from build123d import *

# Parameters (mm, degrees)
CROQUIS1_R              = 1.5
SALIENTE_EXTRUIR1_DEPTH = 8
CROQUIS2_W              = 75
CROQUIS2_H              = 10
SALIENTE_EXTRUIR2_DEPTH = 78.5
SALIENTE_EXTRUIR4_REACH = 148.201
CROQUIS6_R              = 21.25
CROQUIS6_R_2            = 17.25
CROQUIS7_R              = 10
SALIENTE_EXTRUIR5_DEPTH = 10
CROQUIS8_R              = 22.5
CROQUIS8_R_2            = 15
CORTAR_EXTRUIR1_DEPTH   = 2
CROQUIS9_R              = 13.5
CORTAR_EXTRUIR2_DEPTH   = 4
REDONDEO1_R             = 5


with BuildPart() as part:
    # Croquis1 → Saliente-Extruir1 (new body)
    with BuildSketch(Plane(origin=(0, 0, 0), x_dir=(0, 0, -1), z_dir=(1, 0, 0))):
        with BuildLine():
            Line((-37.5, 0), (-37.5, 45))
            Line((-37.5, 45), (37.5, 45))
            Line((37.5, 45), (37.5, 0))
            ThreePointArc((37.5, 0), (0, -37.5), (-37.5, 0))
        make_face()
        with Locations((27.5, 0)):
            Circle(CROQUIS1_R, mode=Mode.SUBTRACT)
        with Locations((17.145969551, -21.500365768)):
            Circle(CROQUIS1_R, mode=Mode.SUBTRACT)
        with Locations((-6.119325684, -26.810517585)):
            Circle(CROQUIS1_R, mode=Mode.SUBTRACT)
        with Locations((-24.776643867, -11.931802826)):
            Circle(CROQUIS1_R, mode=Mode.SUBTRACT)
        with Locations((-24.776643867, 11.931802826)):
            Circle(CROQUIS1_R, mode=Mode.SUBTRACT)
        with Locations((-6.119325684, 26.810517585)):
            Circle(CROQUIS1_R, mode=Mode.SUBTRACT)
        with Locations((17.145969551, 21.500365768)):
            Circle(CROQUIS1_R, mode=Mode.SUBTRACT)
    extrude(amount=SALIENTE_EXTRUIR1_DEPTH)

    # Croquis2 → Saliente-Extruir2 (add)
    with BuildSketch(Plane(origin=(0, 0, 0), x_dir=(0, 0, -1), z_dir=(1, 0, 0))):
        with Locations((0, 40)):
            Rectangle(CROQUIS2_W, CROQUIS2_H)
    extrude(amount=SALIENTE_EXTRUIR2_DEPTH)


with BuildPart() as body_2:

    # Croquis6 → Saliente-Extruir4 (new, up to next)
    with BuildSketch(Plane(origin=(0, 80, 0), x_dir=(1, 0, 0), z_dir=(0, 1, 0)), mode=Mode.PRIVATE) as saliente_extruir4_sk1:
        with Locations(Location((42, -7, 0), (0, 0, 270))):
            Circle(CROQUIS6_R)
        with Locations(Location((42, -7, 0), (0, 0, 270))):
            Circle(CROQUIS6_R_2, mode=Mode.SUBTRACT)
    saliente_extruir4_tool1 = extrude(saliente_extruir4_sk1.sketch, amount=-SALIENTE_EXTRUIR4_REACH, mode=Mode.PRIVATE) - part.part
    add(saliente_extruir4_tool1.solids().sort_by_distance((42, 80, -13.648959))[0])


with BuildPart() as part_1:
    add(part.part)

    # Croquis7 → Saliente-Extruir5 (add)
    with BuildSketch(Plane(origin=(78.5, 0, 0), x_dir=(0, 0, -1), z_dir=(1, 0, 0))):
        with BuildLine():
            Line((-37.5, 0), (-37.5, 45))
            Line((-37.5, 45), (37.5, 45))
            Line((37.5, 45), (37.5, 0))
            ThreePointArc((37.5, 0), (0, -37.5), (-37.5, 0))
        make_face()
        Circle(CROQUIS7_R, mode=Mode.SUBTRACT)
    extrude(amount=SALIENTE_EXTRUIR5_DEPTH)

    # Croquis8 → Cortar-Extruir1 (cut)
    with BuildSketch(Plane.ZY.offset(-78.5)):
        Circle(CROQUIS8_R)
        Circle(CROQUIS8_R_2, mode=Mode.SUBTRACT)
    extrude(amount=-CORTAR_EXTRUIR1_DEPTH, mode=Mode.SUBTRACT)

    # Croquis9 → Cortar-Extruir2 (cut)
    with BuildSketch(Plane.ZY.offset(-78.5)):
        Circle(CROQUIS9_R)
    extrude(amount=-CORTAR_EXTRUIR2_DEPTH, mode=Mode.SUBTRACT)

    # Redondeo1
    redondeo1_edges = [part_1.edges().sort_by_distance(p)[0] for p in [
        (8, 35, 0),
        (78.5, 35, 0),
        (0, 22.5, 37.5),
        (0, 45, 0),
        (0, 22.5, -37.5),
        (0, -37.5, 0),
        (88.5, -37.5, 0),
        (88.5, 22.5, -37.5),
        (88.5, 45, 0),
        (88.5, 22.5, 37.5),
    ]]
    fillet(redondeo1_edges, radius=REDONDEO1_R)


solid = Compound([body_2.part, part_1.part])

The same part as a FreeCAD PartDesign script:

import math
import FreeCAD as App
import Part
import Sketcher


def edges_at(feature, points):
    """Names of the edges that pass closest to the given points."""
    edges = feature.Shape.Edges
    near = lambda p: min(range(len(edges)), key=lambda i: edges[i].distToShape(Part.Vertex(*p))[0])
    return sorted({f"Edge{near(p) + 1}" for p in points})


def add_polygon(sketch, points):
    """Adds a closed chain of lines whose ends are joined by coincident constraints."""
    first, n = sketch.GeometryCount, len(points)
    for a, b in zip(points, points[1:] + points[:1]):
        sketch.addGeometry(Part.LineSegment(App.Vector(*a, 0), App.Vector(*b, 0)), False)
    for i in range(n):
        sketch.addConstraint(Sketcher.Constraint("Coincident", first + i, 2, first + (i + 1) % n, 1))

doc = App.newDocument("Part")
body = doc.addObject("PartDesign::Body", "Body")

sketch1 = doc.addObject("Sketcher::SketchObject", "Sketch")
body.addObject(sketch1)
sketch1.AttachmentSupport = (doc.YZ_Plane, [""])
sketch1.MapMode = "FlatFace"
sketch1.addGeometry(Part.LineSegment(App.Vector(45, 37.5, 0), App.Vector(0, 37.5, 0)), False)
sketch1.addGeometry(Part.ArcOfCircle(Part.Circle(App.Vector(0, 0, 0), App.Vector(0, 0, 1), 37.5), math.radians(90), math.radians(270)), False)
sketch1.addGeometry(Part.LineSegment(App.Vector(0, -37.5, 0), App.Vector(45, -37.5, 0)), False)
sketch1.addGeometry(Part.LineSegment(App.Vector(45, -37.5, 0), App.Vector(45, 37.5, 0)), False)
sketch1.addGeometry(Part.Circle(App.Vector(-21.500366, -17.14597, 0), App.Vector(0, 0, 1), 1.5), False)
sketch1.addGeometry(Part.Circle(App.Vector(-26.810518, 6.119326, 0), App.Vector(0, 0, 1), 1.5), False)
sketch1.addGeometry(Part.Circle(App.Vector(-11.931803, 24.776644, 0), App.Vector(0, 0, 1), 1.5), False)
sketch1.addGeometry(Part.Circle(App.Vector(0, -27.5, 0), App.Vector(0, 0, 1), 1.5), False)
sketch1.addGeometry(Part.Circle(App.Vector(21.500366, -17.14597, 0), App.Vector(0, 0, 1), 1.5), False)
sketch1.addGeometry(Part.Circle(App.Vector(11.931803, 24.776644, 0), App.Vector(0, 0, 1), 1.5), False)
sketch1.addGeometry(Part.Circle(App.Vector(26.810518, 6.119326, 0), App.Vector(0, 0, 1), 1.5), False)
sketch1.addConstraint(Sketcher.Constraint("Tangent", 0, 2, 1, 1))
sketch1.addConstraint(Sketcher.Constraint("Tangent", 1, 2, 2, 1))
sketch1.addConstraint(Sketcher.Constraint("Coincident", 2, 2, 3, 1))
sketch1.addConstraint(Sketcher.Constraint("Coincident", 3, 2, 0, 1))
sketch1.addConstraint(Sketcher.Constraint("Horizontal", 0))
sketch1.addConstraint(Sketcher.Constraint("Horizontal", 2))
sketch1.addConstraint(Sketcher.Constraint("Vertical", 3))
sketch1.addConstraint(Sketcher.Constraint("Coincident", 1, 3, -1, 1))
sketch1.addConstraint(Sketcher.Constraint("Equal", 4, 5))
sketch1.addConstraint(Sketcher.Constraint("Equal", 5, 6))
sketch1.addConstraint(Sketcher.Constraint("Equal", 6, 7))
sketch1.addConstraint(Sketcher.Constraint("Equal", 7, 8))
sketch1.addConstraint(Sketcher.Constraint("Equal", 8, 9))
sketch1.addConstraint(Sketcher.Constraint("Equal", 9, 10))
sketch1.addConstraint(Sketcher.Constraint("Symmetric", 4, 3, 8, 3, -2))
sketch1.addConstraint(Sketcher.Constraint("Symmetric", 6, 3, 9, 3, -2))
sketch1.addConstraint(Sketcher.Constraint("Symmetric", 5, 3, 10, 3, -2))
sketch1.addConstraint(Sketcher.Constraint("PointOnObject", 7, 3, -2))
sketch1.addConstraint(Sketcher.Constraint("Diameter", 4, 3.0))
sketch1.addConstraint(Sketcher.Constraint("Radius", 1, 37.5))
sketch1.addConstraint(Sketcher.Constraint("DistanceX", 0, 2, 0, 1, 45.0))
sketch1.addConstraint(Sketcher.Constraint("DistanceY", 1, 2, 7, 3, 10.0))
sketch1.addConstraint(Sketcher.Constraint("DistanceY", 4, 3, -1, 1, 17.14597))
sketch1.addConstraint(Sketcher.Constraint("DistanceX", 5, 3, 4, 3, 5.310152))
sketch1.addConstraint(Sketcher.Constraint("DistanceY", 5, 3, 6, 3, 18.657318))
sketch1.addConstraint(Sketcher.Constraint("DistanceX", 4, 3, 8, 3, 43.000732))
sketch1.addConstraint(Sketcher.Constraint("DistanceX", 6, 3, 8, 3, 33.432169))
sketch1.addConstraint(Sketcher.Constraint("DistanceY", -1, 1, 5, 3, 6.119326))
pad1 = doc.addObject("PartDesign::Pad", "Pad")
body.addObject(pad1)
pad1.Profile = sketch1
pad1.Length = 8

sketch2 = doc.addObject("Sketcher::SketchObject", "Sketch001")
body.addObject(sketch2)
sketch2.AttachmentSupport = (doc.YZ_Plane, [""])
sketch2.MapMode = "FlatFace"
add_polygon(sketch2, [(45, 37.5), (35, 37.5), (35, -37.5), (45, -37.5)])
sketch2.addConstraint(Sketcher.Constraint("Horizontal", 0))
sketch2.addConstraint(Sketcher.Constraint("Vertical", 1))
sketch2.addConstraint(Sketcher.Constraint("Horizontal", 2))
sketch2.addConstraint(Sketcher.Constraint("Vertical", 3))
sketch2.addConstraint(Sketcher.Constraint("DistanceX", 0, 2, 0, 1, 10.0))
sketch2.addConstraint(Sketcher.Constraint("DistanceY", 1, 2, 1, 1, 75.0))
sketch2.addConstraint(Sketcher.Constraint("DistanceX", -1, 1, 0, 2, 35.0))
sketch2.addConstraint(Sketcher.Constraint("DistanceY", -1, 1, 0, 2, 37.5))
pad2 = doc.addObject("PartDesign::Pad", "Pad001")
body.addObject(pad2)
pad2.Profile = sketch2
pad2.Length = 78.5
body2 = doc.addObject("PartDesign::Body", "Body001")

sketch3 = doc.addObject("Sketcher::SketchObject", "Sketch002")
body2.addObject(sketch3)
sketch3.AttachmentSupport = (doc.getObject("XZ_Plane001"), [""])
sketch3.MapMode = "FlatFace"
sketch3.AttachmentOffset = App.Placement(App.Vector(0, 0, -80), App.Rotation())
sketch3.addGeometry(Part.Circle(App.Vector(42, 7, 0), App.Vector(0, 0, 1), 21.25), False)
sketch3.addGeometry(Part.Circle(App.Vector(42, 7, 0), App.Vector(0, 0, 1), 17.25), False)
sketch3.addConstraint(Sketcher.Constraint("Coincident", 1, 3, 0, 3))
sketch3.addConstraint(Sketcher.Constraint("Diameter", 0, 42.5))
sketch3.addConstraint(Sketcher.Constraint("Diameter", 1, 34.5))
sketch3.addConstraint(Sketcher.Constraint("DistanceX", -1, 1, 0, 3, 42.0))
sketch3.addConstraint(Sketcher.Constraint("DistanceY", -1, 1, 0, 3, 7.0))
pad3 = doc.addObject("PartDesign::Pad", "Pad002")
body2.addObject(pad3)
pad3.Profile = sketch3
pad3.Length = 35

sketch4 = doc.addObject("Sketcher::SketchObject", "Sketch003")
body.addObject(sketch4)
sketch4.AttachmentSupport = (doc.YZ_Plane, [""])
sketch4.MapMode = "FlatFace"
sketch4.AttachmentOffset = App.Placement(App.Vector(0, 0, 78.5), App.Rotation())
sketch4.addGeometry(Part.LineSegment(App.Vector(45, 37.5, 0), App.Vector(0, 37.5, 0)), False)
sketch4.addGeometry(Part.ArcOfCircle(Part.Circle(App.Vector(0, 0, 0), App.Vector(0, 0, 1), 37.5), math.radians(90), math.radians(270)), False)
sketch4.addGeometry(Part.LineSegment(App.Vector(0, -37.5, 0), App.Vector(45, -37.5, 0)), False)
sketch4.addGeometry(Part.LineSegment(App.Vector(45, -37.5, 0), App.Vector(45, 37.5, 0)), False)
sketch4.addGeometry(Part.Circle(App.Vector(0, 0, 0), App.Vector(0, 0, 1), 10), False)
sketch4.addConstraint(Sketcher.Constraint("Tangent", 0, 2, 1, 1))
sketch4.addConstraint(Sketcher.Constraint("Tangent", 1, 2, 2, 1))
sketch4.addConstraint(Sketcher.Constraint("Coincident", 2, 2, 3, 1))
sketch4.addConstraint(Sketcher.Constraint("Coincident", 3, 2, 0, 1))
sketch4.addConstraint(Sketcher.Constraint("Horizontal", 0))
sketch4.addConstraint(Sketcher.Constraint("Horizontal", 2))
sketch4.addConstraint(Sketcher.Constraint("Vertical", 3))
sketch4.addConstraint(Sketcher.Constraint("Coincident", 1, 3, -1, 1))
sketch4.addConstraint(Sketcher.Constraint("Coincident", 4, 3, -1, 1))
sketch4.addConstraint(Sketcher.Constraint("Diameter", 4, 20.0))
sketch4.addConstraint(Sketcher.Constraint("Radius", 1, 37.5))
sketch4.addConstraint(Sketcher.Constraint("DistanceX", 0, 2, 0, 1, 45.0))
pad4 = doc.addObject("PartDesign::Pad", "Pad003")
body.addObject(pad4)
pad4.Profile = sketch4
pad4.Length = 10

sketch5 = doc.addObject("Sketcher::SketchObject", "Sketch004")
body.addObject(sketch5)
sketch5.AttachmentSupport = (doc.YZ_Plane, [""])
sketch5.MapMode = "FlatFace"
sketch5.AttachmentOffset = App.Placement(App.Vector(0, 0, 78.5), App.Rotation())
sketch5.addGeometry(Part.Circle(App.Vector(0, 0, 0), App.Vector(0, 0, 1), 22.5), False)
sketch5.addGeometry(Part.Circle(App.Vector(0, 0, 0), App.Vector(0, 0, 1), 15), False)
sketch5.addConstraint(Sketcher.Constraint("Coincident", 0, 3, -1, 1))
sketch5.addConstraint(Sketcher.Constraint("Coincident", 1, 3, -1, 1))
sketch5.addConstraint(Sketcher.Constraint("Diameter", 0, 45.0))
sketch5.addConstraint(Sketcher.Constraint("Diameter", 1, 30.0))
pocket1 = doc.addObject("PartDesign::Pocket", "Pocket")
body.addObject(pocket1)
pocket1.Profile = sketch5
pocket1.Length = 2
pocket1.Reversed = True

sketch6 = doc.addObject("Sketcher::SketchObject", "Sketch005")
body.addObject(sketch6)
sketch6.AttachmentSupport = (doc.YZ_Plane, [""])
sketch6.MapMode = "FlatFace"
sketch6.AttachmentOffset = App.Placement(App.Vector(0, 0, 78.5), App.Rotation())
sketch6.addGeometry(Part.Circle(App.Vector(0, 0, 0), App.Vector(0, 0, 1), 13.5), False)
sketch6.addConstraint(Sketcher.Constraint("Coincident", 0, 3, -1, 1))
sketch6.addConstraint(Sketcher.Constraint("Diameter", 0, 27.0))
pocket2 = doc.addObject("PartDesign::Pocket", "Pocket001")
body.addObject(pocket2)
pocket2.Profile = sketch6
pocket2.Length = 4
pocket2.Reversed = True
doc.recompute()

fillet = doc.addObject("PartDesign::Fillet", "Fillet")
body.addObject(fillet)
fillet.Base = (pocket2, edges_at(pocket2, [
    (8, 35, 0),
    (78.5, 35, 0),
    (0, 22.5, 37.5),
    (0, 45, 0),
    (0, 22.5, -37.5),
    (0, -37.5, 0),
    (88.5, -37.5, 0),
    (88.5, 22.5, -37.5),
    (88.5, 45, 0),
    (88.5, 22.5, 37.5),
]))
fillet.Radius = 5

doc.recompute()
